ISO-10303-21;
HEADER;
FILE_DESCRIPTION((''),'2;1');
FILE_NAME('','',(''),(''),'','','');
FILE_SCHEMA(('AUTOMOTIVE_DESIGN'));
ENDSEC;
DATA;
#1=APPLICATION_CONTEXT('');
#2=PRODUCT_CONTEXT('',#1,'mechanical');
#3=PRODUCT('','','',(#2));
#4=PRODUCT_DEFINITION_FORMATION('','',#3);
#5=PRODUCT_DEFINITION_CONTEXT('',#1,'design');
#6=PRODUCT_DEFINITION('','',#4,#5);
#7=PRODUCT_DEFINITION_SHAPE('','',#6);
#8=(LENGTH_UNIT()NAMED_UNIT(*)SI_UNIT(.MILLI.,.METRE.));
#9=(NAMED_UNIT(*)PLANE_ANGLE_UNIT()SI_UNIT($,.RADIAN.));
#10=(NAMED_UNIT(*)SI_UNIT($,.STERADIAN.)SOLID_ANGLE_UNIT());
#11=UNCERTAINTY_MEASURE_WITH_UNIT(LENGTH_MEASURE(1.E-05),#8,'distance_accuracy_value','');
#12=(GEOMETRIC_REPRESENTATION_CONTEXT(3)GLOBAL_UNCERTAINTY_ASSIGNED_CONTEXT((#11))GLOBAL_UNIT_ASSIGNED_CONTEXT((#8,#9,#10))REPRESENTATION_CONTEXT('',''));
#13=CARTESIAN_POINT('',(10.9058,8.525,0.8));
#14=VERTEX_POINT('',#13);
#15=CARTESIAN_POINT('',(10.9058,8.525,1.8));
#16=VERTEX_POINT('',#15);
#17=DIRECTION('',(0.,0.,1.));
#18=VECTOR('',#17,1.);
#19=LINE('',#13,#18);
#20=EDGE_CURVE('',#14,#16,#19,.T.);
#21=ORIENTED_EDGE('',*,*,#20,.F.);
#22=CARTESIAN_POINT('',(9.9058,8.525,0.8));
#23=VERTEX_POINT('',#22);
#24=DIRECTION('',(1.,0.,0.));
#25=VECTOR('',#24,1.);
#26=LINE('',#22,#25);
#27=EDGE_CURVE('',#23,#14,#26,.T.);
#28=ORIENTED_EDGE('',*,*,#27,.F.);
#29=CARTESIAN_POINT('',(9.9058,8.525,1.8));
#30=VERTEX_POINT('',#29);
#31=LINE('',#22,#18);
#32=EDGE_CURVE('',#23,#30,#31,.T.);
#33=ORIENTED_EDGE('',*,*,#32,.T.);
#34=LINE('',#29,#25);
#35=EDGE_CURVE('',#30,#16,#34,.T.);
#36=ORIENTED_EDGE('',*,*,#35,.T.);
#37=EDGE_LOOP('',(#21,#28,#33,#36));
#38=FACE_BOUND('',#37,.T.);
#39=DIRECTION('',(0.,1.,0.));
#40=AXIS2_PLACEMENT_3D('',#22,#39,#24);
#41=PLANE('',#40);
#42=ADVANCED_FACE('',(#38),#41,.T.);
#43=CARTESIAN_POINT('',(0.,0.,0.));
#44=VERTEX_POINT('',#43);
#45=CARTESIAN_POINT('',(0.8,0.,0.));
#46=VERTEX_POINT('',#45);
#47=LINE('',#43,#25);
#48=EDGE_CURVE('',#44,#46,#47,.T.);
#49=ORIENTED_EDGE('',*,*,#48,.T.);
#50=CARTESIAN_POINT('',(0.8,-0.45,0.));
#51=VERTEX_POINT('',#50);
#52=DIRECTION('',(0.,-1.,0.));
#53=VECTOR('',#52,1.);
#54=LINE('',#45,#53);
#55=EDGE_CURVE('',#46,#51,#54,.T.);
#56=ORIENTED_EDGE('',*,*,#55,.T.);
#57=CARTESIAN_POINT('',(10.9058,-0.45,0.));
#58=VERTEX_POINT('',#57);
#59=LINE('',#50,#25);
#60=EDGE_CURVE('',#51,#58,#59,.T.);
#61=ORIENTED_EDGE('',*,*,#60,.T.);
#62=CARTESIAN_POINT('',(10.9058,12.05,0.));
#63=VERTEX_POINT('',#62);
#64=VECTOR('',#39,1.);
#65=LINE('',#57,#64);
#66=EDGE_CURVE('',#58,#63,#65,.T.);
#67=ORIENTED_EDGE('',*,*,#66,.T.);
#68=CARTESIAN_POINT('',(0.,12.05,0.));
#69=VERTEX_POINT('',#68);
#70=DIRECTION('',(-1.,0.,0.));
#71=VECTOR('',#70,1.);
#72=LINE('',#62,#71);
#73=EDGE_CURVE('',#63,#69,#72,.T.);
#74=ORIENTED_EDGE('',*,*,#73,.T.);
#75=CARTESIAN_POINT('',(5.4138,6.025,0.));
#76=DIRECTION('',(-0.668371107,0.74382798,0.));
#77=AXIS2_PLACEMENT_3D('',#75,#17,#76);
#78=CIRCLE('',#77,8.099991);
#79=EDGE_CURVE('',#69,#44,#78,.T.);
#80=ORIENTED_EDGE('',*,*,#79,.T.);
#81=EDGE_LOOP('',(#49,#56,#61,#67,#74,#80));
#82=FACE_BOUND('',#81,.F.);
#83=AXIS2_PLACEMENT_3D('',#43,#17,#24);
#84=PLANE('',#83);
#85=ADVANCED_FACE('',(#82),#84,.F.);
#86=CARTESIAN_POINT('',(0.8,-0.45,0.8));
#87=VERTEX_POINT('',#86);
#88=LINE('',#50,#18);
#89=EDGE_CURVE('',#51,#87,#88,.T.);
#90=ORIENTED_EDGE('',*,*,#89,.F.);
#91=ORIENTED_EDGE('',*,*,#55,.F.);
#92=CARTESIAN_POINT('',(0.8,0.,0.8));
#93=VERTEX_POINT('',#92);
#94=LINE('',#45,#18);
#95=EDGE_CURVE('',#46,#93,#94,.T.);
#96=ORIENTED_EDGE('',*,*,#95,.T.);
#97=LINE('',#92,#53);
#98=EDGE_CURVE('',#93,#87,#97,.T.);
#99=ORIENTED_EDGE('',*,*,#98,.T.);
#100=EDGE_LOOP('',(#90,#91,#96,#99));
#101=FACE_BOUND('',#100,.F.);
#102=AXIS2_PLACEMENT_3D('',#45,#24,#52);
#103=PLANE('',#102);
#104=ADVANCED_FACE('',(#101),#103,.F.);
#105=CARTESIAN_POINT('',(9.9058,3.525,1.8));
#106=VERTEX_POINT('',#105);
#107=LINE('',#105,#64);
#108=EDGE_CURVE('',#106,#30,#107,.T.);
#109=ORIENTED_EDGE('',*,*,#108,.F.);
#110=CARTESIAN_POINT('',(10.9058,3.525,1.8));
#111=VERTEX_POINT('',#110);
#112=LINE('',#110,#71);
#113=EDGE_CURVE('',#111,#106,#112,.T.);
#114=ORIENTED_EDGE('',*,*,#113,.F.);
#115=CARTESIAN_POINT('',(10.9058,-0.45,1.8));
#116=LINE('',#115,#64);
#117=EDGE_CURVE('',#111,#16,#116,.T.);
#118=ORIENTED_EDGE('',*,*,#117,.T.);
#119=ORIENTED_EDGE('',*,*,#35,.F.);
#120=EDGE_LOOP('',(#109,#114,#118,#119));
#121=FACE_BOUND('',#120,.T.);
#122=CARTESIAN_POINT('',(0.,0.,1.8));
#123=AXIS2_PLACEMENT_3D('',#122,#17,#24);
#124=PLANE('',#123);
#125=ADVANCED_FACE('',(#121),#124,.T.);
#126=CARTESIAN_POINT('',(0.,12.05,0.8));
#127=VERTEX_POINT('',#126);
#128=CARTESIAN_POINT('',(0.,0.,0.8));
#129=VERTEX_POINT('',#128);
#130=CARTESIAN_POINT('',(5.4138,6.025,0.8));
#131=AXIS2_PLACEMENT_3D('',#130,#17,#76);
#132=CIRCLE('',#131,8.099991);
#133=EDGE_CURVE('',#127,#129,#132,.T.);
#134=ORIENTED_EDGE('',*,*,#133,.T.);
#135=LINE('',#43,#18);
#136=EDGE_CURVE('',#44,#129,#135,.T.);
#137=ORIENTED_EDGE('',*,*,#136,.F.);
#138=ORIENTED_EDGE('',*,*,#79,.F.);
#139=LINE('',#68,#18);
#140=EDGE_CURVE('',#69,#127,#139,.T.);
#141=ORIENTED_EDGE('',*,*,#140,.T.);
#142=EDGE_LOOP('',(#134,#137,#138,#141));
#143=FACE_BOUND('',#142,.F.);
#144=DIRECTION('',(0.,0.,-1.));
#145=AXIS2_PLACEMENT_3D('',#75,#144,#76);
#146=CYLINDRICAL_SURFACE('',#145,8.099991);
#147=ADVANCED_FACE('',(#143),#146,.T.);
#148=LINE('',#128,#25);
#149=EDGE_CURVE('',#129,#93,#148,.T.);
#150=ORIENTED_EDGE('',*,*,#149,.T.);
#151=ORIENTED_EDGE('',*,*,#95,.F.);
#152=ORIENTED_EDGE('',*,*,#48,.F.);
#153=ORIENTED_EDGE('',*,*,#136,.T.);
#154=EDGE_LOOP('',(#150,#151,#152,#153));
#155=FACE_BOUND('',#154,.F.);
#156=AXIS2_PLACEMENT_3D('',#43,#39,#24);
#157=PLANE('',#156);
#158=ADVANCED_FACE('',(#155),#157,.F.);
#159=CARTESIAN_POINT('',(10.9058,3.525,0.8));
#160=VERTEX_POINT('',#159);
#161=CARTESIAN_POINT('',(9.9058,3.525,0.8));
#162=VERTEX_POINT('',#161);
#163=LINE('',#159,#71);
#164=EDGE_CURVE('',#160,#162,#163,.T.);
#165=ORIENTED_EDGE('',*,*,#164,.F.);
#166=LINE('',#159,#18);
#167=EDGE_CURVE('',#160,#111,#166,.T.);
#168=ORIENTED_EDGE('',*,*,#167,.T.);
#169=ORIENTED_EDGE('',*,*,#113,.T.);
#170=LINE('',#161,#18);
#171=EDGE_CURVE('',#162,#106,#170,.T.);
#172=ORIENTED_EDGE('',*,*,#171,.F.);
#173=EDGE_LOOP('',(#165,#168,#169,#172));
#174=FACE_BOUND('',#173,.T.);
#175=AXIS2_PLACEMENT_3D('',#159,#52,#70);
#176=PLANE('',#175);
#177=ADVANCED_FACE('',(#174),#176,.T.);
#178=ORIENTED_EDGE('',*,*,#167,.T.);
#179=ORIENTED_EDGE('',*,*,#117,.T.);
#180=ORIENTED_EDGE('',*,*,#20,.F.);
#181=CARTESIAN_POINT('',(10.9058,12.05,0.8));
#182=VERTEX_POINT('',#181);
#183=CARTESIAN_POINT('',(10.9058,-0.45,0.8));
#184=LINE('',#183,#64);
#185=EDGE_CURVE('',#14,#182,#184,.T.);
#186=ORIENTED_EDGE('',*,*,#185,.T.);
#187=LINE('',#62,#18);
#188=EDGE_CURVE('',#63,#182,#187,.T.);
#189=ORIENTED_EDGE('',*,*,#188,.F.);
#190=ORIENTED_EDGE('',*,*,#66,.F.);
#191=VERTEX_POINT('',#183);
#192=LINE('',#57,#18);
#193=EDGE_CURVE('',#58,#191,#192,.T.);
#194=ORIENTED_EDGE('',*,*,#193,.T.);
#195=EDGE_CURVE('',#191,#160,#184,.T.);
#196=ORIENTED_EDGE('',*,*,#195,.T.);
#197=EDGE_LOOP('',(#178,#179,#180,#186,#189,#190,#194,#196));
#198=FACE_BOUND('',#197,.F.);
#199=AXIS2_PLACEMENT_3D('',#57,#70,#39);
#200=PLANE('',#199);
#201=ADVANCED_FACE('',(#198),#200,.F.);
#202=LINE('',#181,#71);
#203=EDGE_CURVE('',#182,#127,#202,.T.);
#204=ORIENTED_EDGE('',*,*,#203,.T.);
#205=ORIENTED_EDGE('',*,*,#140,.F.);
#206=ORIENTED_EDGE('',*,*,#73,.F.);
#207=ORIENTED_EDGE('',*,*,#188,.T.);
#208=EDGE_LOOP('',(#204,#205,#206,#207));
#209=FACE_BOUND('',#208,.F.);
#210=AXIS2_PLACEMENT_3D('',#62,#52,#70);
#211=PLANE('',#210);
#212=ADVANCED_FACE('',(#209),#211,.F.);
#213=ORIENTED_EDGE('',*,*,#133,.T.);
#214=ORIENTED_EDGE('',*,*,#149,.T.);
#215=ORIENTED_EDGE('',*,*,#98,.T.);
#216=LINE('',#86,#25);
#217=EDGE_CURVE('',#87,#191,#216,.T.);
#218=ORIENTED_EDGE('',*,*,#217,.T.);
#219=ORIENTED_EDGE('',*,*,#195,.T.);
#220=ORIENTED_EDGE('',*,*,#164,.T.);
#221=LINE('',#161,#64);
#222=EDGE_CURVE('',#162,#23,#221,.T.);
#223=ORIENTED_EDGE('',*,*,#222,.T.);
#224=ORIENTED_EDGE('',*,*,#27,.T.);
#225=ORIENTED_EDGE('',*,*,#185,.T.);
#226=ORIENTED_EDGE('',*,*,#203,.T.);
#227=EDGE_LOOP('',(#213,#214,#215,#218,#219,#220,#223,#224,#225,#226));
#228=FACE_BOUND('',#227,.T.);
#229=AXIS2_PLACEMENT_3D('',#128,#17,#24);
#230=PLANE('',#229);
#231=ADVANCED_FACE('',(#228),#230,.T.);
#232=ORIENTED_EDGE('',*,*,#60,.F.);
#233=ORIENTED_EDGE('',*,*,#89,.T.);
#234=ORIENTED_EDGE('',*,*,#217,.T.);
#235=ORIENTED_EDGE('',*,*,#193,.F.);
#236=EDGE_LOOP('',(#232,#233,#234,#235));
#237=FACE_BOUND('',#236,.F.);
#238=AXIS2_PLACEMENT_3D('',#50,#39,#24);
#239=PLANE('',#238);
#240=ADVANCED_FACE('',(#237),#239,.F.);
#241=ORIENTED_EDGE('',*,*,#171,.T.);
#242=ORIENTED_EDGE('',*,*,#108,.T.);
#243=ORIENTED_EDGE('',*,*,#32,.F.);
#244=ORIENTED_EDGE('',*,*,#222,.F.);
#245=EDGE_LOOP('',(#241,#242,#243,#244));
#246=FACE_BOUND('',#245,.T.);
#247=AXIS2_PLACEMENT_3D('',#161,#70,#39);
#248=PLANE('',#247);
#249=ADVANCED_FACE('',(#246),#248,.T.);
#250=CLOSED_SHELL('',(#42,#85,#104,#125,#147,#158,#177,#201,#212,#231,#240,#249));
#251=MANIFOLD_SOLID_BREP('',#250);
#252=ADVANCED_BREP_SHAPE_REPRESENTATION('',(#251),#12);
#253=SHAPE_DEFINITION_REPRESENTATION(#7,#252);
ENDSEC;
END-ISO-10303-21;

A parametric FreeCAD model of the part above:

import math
import FreeCAD as App
import Part
import Sketcher

doc = App.newDocument("Part")
params = doc.addObject("Spreadsheet::Sheet", "Params")
for row, (alias, value) in enumerate([
    ("sketch1_radius", "8.1 mm"),
    ("sketch1_width", "0.8 mm"),
    ("sketch1_height", "12.5 mm"),
    ("sketch1_height2", "0.45 mm"),
    ("pad1_length", "0.8 mm"),
    ("sketch2_width", "1 mm"),
    ("sketch2_height", "5 mm"),
    ("pad2_length", "1 mm"),
], start=1):
    params.set(f"A{row}", alias)
    params.set(f"B{row}", "=" + value)
    params.setAlias(f"B{row}", alias)

body = doc.addObject("PartDesign::Body", "Body")

# Sketch on XY plane
sketch1 = body.newObject("Sketcher::SketchObject", "Sketch")
sketch1.AttachmentSupport = (doc.getObject("XY_Plane"), [""])
sketch1.MapMode = "FlatFace"
sketch1.addGeometry([
    Part.LineSegment(App.Vector(10.91, -0.45, 0), App.Vector(10.91, 12.05, 0)),  # 0
    Part.LineSegment(App.Vector(10.91, 12.05, 0), App.Vector(0, 12.05, 0)),  # 1
    Part.ArcOfCircle(Part.Circle(App.Vector(5.41, 6.03, 0), App.Vector(0, 0, 1), 8.1), math.radians(132), math.radians(228)),  # 2
    Part.LineSegment(App.Vector(0, 0, 0), App.Vector(0.8, 0, 0)),  # 3
    Part.LineSegment(App.Vector(0.8, 0, 0), App.Vector(0.8, -0.45, 0)),  # 4
    Part.LineSegment(App.Vector(0.8, -0.45, 0), App.Vector(10.91, -0.45, 0)),  # 5
], False)
sketch1.addConstraint([
    Sketcher.Constraint("Coincident", 0, 2, 1, 1),
    Sketcher.Constraint("Coincident", 1, 2, 2, 1),
    Sketcher.Constraint("Coincident", 2, 2, 3, 1),
    Sketcher.Constraint("Coincident", 3, 2, 4, 1),
    Sketcher.Constraint("Coincident", 4, 2, 5, 1),
    Sketcher.Constraint("Coincident", 5, 2, 0, 1),
    Sketcher.Constraint("Vertical", 0),
    Sketcher.Constraint("Horizontal", 1),
    Sketcher.Constraint("Horizontal", 3),
    Sketcher.Constraint("Vertical", 4),
    Sketcher.Constraint("Horizontal", 5),
    Sketcher.Constraint("Coincident", 2, 2, -1, 1),
    Sketcher.Constraint("PointOnObject", 1, 2, -2),
    Sketcher.Constraint("Radius", 2, 8.1),
    Sketcher.Constraint("DistanceX", 3, 1, 3, 2, 0.8),
    Sketcher.Constraint("DistanceY", 0, 1, 0, 2, 12.5),
    Sketcher.Constraint("DistanceY", 4, 2, 4, 1, 0.45),
    Sketcher.Constraint("DistanceX", 2, 3, 0, 2, 5.492),
])
sketch1.setExpression("Constraints[13]", "Params.sketch1_radius")
sketch1.setExpression("Constraints[14]", "Params.sketch1_width")
sketch1.setExpression("Constraints[15]", "Params.sketch1_height")
sketch1.setExpression("Constraints[16]", "Params.sketch1_height2")
pad1 = body.newObject("PartDesign::Pad", "Pad")
pad1.Profile = sketch1
pad1.setExpression("Length", "Params.pad1_length")

# Sketch on XY plane
sketch2 = body.newObject("Sketcher::SketchObject", "Sketch001")
sketch2.AttachmentSupport = (doc.getObject("XY_Plane"), [""])
sketch2.MapMode = "FlatFace"
sketch2.AttachmentOffset = App.Placement(App.Vector(0, 0, 0.8), App.Rotation())
sketch2.addGeometry([
    Part.LineSegment(App.Vector(9.9, 3.5, 0), App.Vector(10.9, 3.5, 0)),
    Part.LineSegment(App.Vector(10.9, 3.5, 0), App.Vector(10.9, 8.5, 0)),
    Part.LineSegment(App.Vector(10.9, 8.5, 0), App.Vector(9.9, 8.5, 0)),
    Part.LineSegment(App.Vector(9.9, 8.5, 0), App.Vector(9.9, 3.5, 0)),
], False)
sketch2.addConstraint([
    Sketcher.Constraint("Coincident", 0, 2, 1, 1),
    Sketcher.Constraint("Coincident", 1, 2, 2, 1),
    Sketcher.Constraint("Coincident", 2, 2, 3, 1),
    Sketcher.Constraint("Coincident", 3, 2, 0, 1),
    Sketcher.Constraint("Horizontal", 0),
    Sketcher.Constraint("Vertical", 1),
    Sketcher.Constraint("Horizontal", 2),
    Sketcher.Constraint("Vertical", 3),
    Sketcher.Constraint("DistanceX", 0, 1, 0, 2, 1.0),
    Sketcher.Constraint("DistanceY", 1, 1, 1, 2, 5.0),
    Sketcher.Constraint("DistanceY", -1, 1, 0, 2, 3.525),
    Sketcher.Constraint("DistanceX", -1, 1, 0, 2, 10.9058),
])
sketch2.setExpression("Constraints[8]", "Params.sketch2_width")
sketch2.setExpression("Constraints[9]", "Params.sketch2_height")
pad2 = body.newObject("PartDesign::Pad", "Pad001")
pad2.Profile = sketch2
pad2.setExpression("Length", "Params.pad2_length")

doc.recompute()
